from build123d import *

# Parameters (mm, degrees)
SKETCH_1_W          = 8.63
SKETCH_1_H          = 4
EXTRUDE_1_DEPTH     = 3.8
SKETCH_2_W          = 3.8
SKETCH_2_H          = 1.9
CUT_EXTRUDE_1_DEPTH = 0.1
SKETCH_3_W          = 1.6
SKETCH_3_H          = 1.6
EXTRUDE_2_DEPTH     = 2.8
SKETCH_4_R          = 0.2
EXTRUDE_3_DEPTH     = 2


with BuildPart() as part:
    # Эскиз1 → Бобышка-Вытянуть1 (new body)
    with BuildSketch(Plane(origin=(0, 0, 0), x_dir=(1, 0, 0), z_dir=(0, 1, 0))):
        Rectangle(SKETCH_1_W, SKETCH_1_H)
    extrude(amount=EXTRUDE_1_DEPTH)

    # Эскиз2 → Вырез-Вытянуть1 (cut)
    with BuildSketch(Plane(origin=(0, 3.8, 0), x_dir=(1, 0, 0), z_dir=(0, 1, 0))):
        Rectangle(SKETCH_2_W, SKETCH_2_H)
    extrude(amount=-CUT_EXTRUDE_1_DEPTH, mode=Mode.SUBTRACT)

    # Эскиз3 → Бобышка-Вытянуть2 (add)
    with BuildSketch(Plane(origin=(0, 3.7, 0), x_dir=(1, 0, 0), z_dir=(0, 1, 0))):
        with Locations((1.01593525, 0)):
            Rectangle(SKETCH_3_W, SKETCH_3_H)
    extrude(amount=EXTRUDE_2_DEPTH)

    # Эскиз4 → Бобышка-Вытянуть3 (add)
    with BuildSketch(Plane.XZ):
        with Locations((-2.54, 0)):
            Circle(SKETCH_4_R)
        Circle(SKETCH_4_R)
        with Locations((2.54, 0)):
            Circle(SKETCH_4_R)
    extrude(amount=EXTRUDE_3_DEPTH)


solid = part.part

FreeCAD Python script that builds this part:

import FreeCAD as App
import Part
import Sketcher

V = App.Vector

doc = App.newDocument("Part")
params = doc.addObject("Spreadsheet::Sheet", "Params")
for row, (alias, value) in enumerate([
    ("sketch1_height", "4 mm"),
    ("sketch1_width", "8.63 mm"),
    ("pad1_length", "3.8 mm"),
    ("sketch2_width", "3.8 mm"),
    ("sketch2_height", "1.9 mm"),
    ("pocket1_length", "0.1 mm"),
    ("sketch3_width", "1.6 mm"),
    ("pad2_length", "2.8 mm"),
    ("sketch4_diameter", "0.4 mm"),
    ("pad3_length", "2 mm"),
], start=1):
    params.set(f"A{row}", alias)
    params.set(f"B{row}", "=" + value)
    params.setAlias(f"B{row}", alias)

body = doc.addObject("PartDesign::Body", "Body")

# Sketch on XZ plane
sketch1 = body.newObject("Sketcher::SketchObject", "Sketch")
sketch1.AttachmentSupport = (doc.getObject("XZ_Plane"), [""])
sketch1.MapMode = "FlatFace"
sketch1.addGeometry(Part.LineSegment(V(-4.3, -2, 0), V(-4.3, 2, 0)), False)
sketch1.addGeometry(Part.LineSegment(V(-4.3, 2, 0), V(4.3, 2, 0)), False)
sketch1.addGeometry(Part.LineSegment(V(4.3, 2, 0), V(4.3, -2, 0)), False)
sketch1.addGeometry(Part.LineSegment(V(4.3, -2, 0), V(-4.3, -2, 0)), False)
sketch1.addConstraint(Sketcher.Constraint("Coincident", 0, 2, 1, 1))
sketch1.addConstraint(Sketcher.Constraint("Coincident", 1, 2, 2, 1))
sketch1.addConstraint(Sketcher.Constraint("Coincident", 2, 2, 3, 1))
sketch1.addConstraint(Sketcher.Constraint("Coincident", 3, 2, 0, 1))
sketch1.addConstraint(Sketcher.Constraint("Vertical", 0))
sketch1.addConstraint(Sketcher.Constraint("Horizontal", 1))
sketch1.addConstraint(Sketcher.Constraint("Vertical", 2))
sketch1.addConstraint(Sketcher.Constraint("Horizontal", 3))
sketch1.addConstraint(Sketcher.Constraint("Symmetric", 0, 2, 2, 2, -1, 1))
sketch1.addConstraint(Sketcher.Constraint("DistanceY", 0, 1, 0, 2, 4.0))
sketch1.addConstraint(Sketcher.Constraint("DistanceX", 1, 1, 1, 2, 8.63))
sketch1.setExpression("Constraints[9]", "Params.sketch1_height")
sketch1.setExpression("Constraints[10]", "Params.sketch1_width")
pad1 = body.newObject("PartDesign::Pad", "Pad")
pad1.Profile = sketch1
pad1.setExpression("Length", "Params.pad1_length")
pad1.Reversed = True

# Sketch on XZ plane
sketch2 = body.newObject("Sketcher::SketchObject", "Sketch001")
sketch2.AttachmentSupport = (doc.getObject("XZ_Plane"), [""])
sketch2.MapMode = "FlatFace"
sketch2.AttachmentOffset = App.Placement(V(0, 0, -3.8), App.Rotation())
sketch2.addGeometry(Part.LineSegment(V(-1.9, -0.9, 0), V(-1.9, 0.9, 0)), False)
sketch2.addGeometry(Part.LineSegment(V(-1.9, 0.9, 0), V(1.9, 0.9, 0)), False)
sketch2.addGeometry(Part.LineSegment(V(1.9, 0.9, 0), V(1.9, -0.9, 0)), False)
sketch2.addGeometry(Part.LineSegment(V(1.9, -0.9, 0), V(-1.9, -0.9, 0)), False)
sketch2.addConstraint(Sketcher.Constraint("Coincident", 0, 2, 1, 1))
sketch2.addConstraint(Sketcher.Constraint("Coincident", 1, 2, 2, 1))
sketch2.addConstraint(Sketcher.Constraint("Coincident", 2, 2, 3, 1))
sketch2.addConstraint(Sketcher.Constraint("Coincident", 3, 2, 0, 1))
sketch2.addConstraint(Sketcher.Constraint("Vertical", 0))
sketch2.addConstraint(Sketcher.Constraint("Horizontal", 1))
sketch2.addConstraint(Sketcher.Constraint("Vertical", 2))
sketch2.addConstraint(Sketcher.Constraint("Horizontal", 3))
sketch2.addConstraint(Sketcher.Constraint("Symmetric", 0, 2, 2, 2, -1, 1))
sketch2.addConstraint(Sketcher.Constraint("DistanceX", 1, 1, 1, 2, 3.8))
sketch2.addConstraint(Sketcher.Constraint("DistanceY", 0, 1, 0, 2, 1.9))
sketch2.setExpression("Constraints[9]", "Params.sketch2_width")
sketch2.setExpression("Constraints[10]", "Params.sketch2_height")
pocket1 = body.newObject("PartDesign::Pocket", "Pocket")
pocket1.Profile = sketch2
pocket1.setExpression("Length", "Params.pocket1_length")
pocket1.Reversed = True

# Sketch on XZ plane
sketch3 = body.newObject("Sketcher::SketchObject", "Sketch002")
sketch3.AttachmentSupport = (doc.getObject("XZ_Plane"), [""])
sketch3.MapMode = "FlatFace"
sketch3.AttachmentOffset = App.Placement(V(0, 0, -3.7), App.Rotation())
sketch3.addGeometry(Part.LineSegment(V(0.2, -0.8, 0), V(0.2, 0.8, 0)), False)
sketch3.addGeometry(Part.LineSegment(V(0.2, 0.8, 0), V(1.8, 0.8, 0)), False)
sketch3.addGeometry(Part.LineSegment(V(1.8, 0.8, 0), V(1.8, -0.8, 0)), False)
sketch3.addGeometry(Part.LineSegment(V(1.8, -0.8, 0), V(0.2, -0.8, 0)), False)
sketch3.addConstraint(Sketcher.Constraint("Coincident", 0, 2, 1, 1))
sketch3.addConstraint(Sketcher.Constraint("Coincident", 1, 2, 2, 1))
sketch3.addConstraint(Sketcher.Constraint("Coincident", 2, 2, 3, 1))
sketch3.addConstraint(Sketcher.Constraint("Coincident", 3, 2, 0, 1))
sketch3.addConstraint(Sketcher.Constraint("Vertical", 0))
sketch3.addConstraint(Sketcher.Constraint("Horizontal", 1))
sketch3.addConstraint(Sketcher.Constraint("Vertical", 2))
sketch3.addConstraint(Sketcher.Constraint("Horizontal", 3))
sketch3.addConstraint(Sketcher.Constraint("Equal", 3, 0))
sketch3.addConstraint(Sketcher.Constraint("DistanceX", 1, 1, 1, 2, 1.6))
sketch3.addConstraint(Sketcher.Constraint("DistanceY", -1, 1, 0, 2, 0.8))
sketch3.addConstraint(Sketcher.Constraint("DistanceX", -1, 1, 0, 2, 0.215935))
sketch3.setExpression("Constraints[9]", "Params.sketch3_width")
pad2 = body.newObject("PartDesign::Pad", "Pad001")
pad2.Profile = sketch3
pad2.setExpression("Length", "Params.pad2_length")
pad2.Reversed = True

# Sketch on XZ plane
sketch4 = body.newObject("Sketcher::SketchObject", "Sketch003")
sketch4.AttachmentSupport = (doc.getObject("XZ_Plane"), [""])
sketch4.MapMode = "FlatFace"
sketch4.addGeometry(Part.Circle(V(-2.54, 0, 0), V(0, 0, 1), 0.2), False)
sketch4.addGeometry(Part.Circle(V(0, 0, 0), V(0, 0, 1), 0.2), False)
sketch4.addGeometry(Part.Circle(V(2.54, 0, 0), V(0, 0, 1), 0.2), False)
sketch4.addConstraint(Sketcher.Constraint("Coincident", 1, 3, -1, 1))
sketch4.addConstraint(Sketcher.Constraint("Equal", 0, 1))
sketch4.addConstraint(Sketcher.Constraint("Equal", 1, 2))
sketch4.addConstraint(Sketcher.Constraint("Symmetric", 0, 3, 2, 3, -1, 1))
sketch4.addConstraint(Sketcher.Constraint("PointOnObject", 0, 3, -1))
sketch4.addConstraint(Sketcher.Constraint("Diameter", 0, 0.4))
sketch4.addConstraint(Sketcher.Constraint("DistanceX", 0, 3, -1, 1, 2.54))
sketch4.setExpression("Constraints[5]", "Params.sketch4_diameter")
pad3 = body.newObject("PartDesign::Pad", "Pad002")
pad3.Profile = sketch4
pad3.setExpression("Length", "Params.pad3_length")

doc.recompute()
